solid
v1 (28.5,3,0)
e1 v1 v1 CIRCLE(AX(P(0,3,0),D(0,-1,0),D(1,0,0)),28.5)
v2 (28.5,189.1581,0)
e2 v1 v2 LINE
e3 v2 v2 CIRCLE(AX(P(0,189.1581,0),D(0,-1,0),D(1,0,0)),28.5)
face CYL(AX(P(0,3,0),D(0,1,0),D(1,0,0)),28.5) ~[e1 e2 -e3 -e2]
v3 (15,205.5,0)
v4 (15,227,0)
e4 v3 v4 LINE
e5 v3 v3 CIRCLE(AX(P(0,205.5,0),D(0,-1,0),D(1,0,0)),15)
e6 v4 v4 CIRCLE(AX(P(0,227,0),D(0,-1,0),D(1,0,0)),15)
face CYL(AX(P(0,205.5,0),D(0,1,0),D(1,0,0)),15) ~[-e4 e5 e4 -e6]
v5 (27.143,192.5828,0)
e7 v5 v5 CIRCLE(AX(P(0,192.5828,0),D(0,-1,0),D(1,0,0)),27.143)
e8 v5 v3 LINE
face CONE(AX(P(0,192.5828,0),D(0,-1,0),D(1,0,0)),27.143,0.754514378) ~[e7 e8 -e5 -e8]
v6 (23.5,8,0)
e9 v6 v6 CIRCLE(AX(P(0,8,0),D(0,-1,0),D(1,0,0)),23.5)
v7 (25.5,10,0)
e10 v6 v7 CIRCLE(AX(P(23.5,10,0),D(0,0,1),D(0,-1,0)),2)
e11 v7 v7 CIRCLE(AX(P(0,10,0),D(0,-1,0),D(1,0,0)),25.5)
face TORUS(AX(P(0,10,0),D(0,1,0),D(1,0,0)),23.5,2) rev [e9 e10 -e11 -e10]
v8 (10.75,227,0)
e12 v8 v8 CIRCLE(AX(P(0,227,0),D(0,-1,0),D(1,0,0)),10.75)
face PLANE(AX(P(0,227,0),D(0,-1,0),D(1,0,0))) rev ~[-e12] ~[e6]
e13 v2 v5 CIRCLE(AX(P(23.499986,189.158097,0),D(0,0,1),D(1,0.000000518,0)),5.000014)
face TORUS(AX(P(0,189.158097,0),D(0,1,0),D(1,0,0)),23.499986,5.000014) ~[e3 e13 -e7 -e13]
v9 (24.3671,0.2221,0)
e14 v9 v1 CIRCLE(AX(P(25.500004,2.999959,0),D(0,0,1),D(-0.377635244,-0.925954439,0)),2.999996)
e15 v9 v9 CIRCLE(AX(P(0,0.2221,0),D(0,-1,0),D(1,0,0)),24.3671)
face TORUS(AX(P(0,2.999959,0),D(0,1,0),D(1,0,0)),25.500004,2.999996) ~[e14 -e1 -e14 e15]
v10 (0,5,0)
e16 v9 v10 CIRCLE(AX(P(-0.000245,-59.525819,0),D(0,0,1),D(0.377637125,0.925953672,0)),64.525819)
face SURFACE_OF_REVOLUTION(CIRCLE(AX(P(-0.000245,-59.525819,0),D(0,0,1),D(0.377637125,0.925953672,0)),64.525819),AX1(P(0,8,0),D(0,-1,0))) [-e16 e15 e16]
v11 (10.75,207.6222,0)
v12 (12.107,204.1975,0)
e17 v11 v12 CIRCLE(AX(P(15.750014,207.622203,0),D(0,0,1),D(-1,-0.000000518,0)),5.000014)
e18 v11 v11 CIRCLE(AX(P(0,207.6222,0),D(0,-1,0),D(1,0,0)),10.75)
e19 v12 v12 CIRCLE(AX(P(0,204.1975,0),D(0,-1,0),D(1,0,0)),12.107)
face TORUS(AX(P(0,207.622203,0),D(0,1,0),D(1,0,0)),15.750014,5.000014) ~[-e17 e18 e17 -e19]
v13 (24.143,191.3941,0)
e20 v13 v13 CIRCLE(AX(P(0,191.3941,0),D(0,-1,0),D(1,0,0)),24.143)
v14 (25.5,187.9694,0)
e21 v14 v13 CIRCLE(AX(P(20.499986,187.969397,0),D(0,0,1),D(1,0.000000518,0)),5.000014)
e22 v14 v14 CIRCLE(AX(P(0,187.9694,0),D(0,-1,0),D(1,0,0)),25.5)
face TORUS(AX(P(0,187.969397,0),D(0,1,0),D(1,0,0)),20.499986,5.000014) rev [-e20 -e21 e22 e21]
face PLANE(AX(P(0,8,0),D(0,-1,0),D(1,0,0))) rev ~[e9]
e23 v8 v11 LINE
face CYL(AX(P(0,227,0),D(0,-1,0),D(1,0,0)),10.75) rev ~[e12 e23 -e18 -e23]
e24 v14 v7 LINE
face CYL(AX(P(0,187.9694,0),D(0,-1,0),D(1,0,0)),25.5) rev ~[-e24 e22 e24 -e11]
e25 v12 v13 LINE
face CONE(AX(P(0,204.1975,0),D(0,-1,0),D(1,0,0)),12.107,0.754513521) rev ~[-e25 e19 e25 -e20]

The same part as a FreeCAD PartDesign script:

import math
import FreeCAD as App
import Part
import Sketcher
Q = App.Units.Quantity

doc = App.newDocument("Part")
body = doc.addObject("PartDesign::Body", "Body")

# Sketch on XY plane
sketch1 = doc.addObject("Sketcher::SketchObject", "Sketch")
body.addObject(sketch1)
sketch1.AttachmentSupport = (doc.XY_Plane, [""])
sketch1.MapMode = "FlatFace"
sketch1.addGeometry(Part.LineSegment(App.Vector(23.5, 8, 0), App.Vector(0, 8, 0)), False)
sketch1.addGeometry(Part.LineSegment(App.Vector(0, 8, 0), App.Vector(0, 5, 0)), False)
sketch1.addGeometry(Part.ArcOfCircle(Part.Circle(App.Vector(0, -59.5, 0), App.Vector(0, 0, 1), 64.5), math.radians(68), math.radians(90)), False)
sketch1.addGeometry(Part.ArcOfCircle(Part.Circle(App.Vector(25.5, 3, 0), App.Vector(0, 0, 1), 3), math.radians(-112), math.radians(0)), False)
sketch1.addGeometry(Part.LineSegment(App.Vector(28.5, 3, 0), App.Vector(28.5, 189.2, 0)), False)
sketch1.addGeometry(Part.ArcOfCircle(Part.Circle(App.Vector(23.5, 189.2, 0), App.Vector(0, 0, 1), 5), math.radians(0), math.radians(43)), False)
sketch1.addGeometry(Part.LineSegment(App.Vector(27.1, 192.6, 0), App.Vector(15, 205.5, 0)), False)
sketch1.addGeometry(Part.LineSegment(App.Vector(15, 205.5, 0), App.Vector(15, 227, 0)), False)
sketch1.addGeometry(Part.LineSegment(App.Vector(15, 227, 0), App.Vector(10.8, 227, 0)), False)
sketch1.addGeometry(Part.LineSegment(App.Vector(10.8, 227, 0), App.Vector(10.8, 207.6, 0)), False)
sketch1.addGeometry(Part.ArcOfCircle(Part.Circle(App.Vector(15.8, 207.6, 0), App.Vector(0, 0, 1), 5), math.radians(180), math.radians(223)), False)
sketch1.addGeometry(Part.LineSegment(App.Vector(12.1, 204.2, 0), App.Vector(24.1, 191.4, 0)), False)
sketch1.addGeometry(Part.ArcOfCircle(Part.Circle(App.Vector(20.5, 188, 0), App.Vector(0, 0, 1), 5), math.radians(0), math.radians(43)), False)
sketch1.addGeometry(Part.LineSegment(App.Vector(25.5, 188, 0), App.Vector(25.5, 10, 0)), False)
sketch1.addGeometry(Part.ArcOfCircle(Part.Circle(App.Vector(23.5, 10, 0), App.Vector(0, 0, 1), 2), math.radians(-90), math.radians(0)), False)
sketch1.addConstraint(Sketcher.Constraint("Coincident", 0, 2, 1, 1))
sketch1.addConstraint(Sketcher.Constraint("Coincident", 1, 2, 2, 2))
sketch1.addConstraint(Sketcher.Constraint("Tangent", 2, 1, 3, 1))
sketch1.addConstraint(Sketcher.Constraint("Tangent", 3, 2, 4, 1))
sketch1.addConstraint(Sketcher.Constraint("Tangent", 4, 2, 5, 1))
sketch1.addConstraint(Sketcher.Constraint("Tangent", 5, 2, 6, 1))
sketch1.addConstraint(Sketcher.Constraint("Coincident", 6, 2, 7, 1))
sketch1.addConstraint(Sketcher.Constraint("Coincident", 7, 2, 8, 1))
sketch1.addConstraint(Sketcher.Constraint("Coincident", 8, 2, 9, 1))
sketch1.addConstraint(Sketcher.Constraint("Tangent", 9, 2, 10, 1))
sketch1.addConstraint(Sketcher.Constraint("Tangent", 10, 2, 11, 1))
sketch1.addConstraint(Sketcher.Constraint("Tangent", 11, 2, 12, 2))
sketch1.addConstraint(Sketcher.Constraint("Tangent", 12, 1, 13, 1))
sketch1.addConstraint(Sketcher.Constraint("Tangent", 13, 2, 14, 2))
sketch1.addConstraint(Sketcher.Constraint("Tangent", 14, 1, 0, 1))
sketch1.addConstraint(Sketcher.Constraint("Horizontal", 0))
sketch1.addConstraint(Sketcher.Constraint("Vertical", 1))
sketch1.addConstraint(Sketcher.Constraint("Vertical", 4))
sketch1.addConstraint(Sketcher.Constraint("Vertical", 7))
sketch1.addConstraint(Sketcher.Constraint("Horizontal", 8))
sketch1.addConstraint(Sketcher.Constraint("Vertical", 9))
sketch1.addConstraint(Sketcher.Constraint("Vertical", 13))
sketch1.addConstraint(Sketcher.Constraint("Equal", 5, 10))
sketch1.addConstraint(Sketcher.Constraint("Equal", 10, 12))
sketch1.addConstraint(Sketcher.Constraint("PointOnObject", 2, 3, -2))
sketch1.addConstraint(Sketcher.Constraint("PointOnObject", 0, 2, -2))
sketch1.addConstraint(Sketcher.Constraint("Parallel", 6, 11))
sketch1.addConstraint(Sketcher.Constraint("Vertical", 5, 3, 14, 3))
sketch1.addConstraint(Sketcher.Constraint("Vertical", 3, 3, 12, 1))
sketch1.addConstraint(Sketcher.Constraint("Radius", 3, 3.0))
sketch1.addConstraint(Sketcher.Constraint("Radius", 5, 5.0))
sketch1.addConstraint(Sketcher.Constraint("DistanceY", 1, 2, 1, 1, 3.0))
sketch1.addConstraint(Sketcher.Constraint("DistanceY", 7, 1, 7, 2, 21.5))
sketch1.addConstraint(Sketcher.Constraint("DistanceY", -1, 1, 3, 3, 3.0))
sketch1.addConstraint(Sketcher.Constraint("DistanceY", -1, 1, 1, 2, 5.0))
sketch1.addConstraint(Sketcher.Constraint("DistanceY", -1, 1, 7, 2, 227.0))
sketch1.addConstraint(Sketcher.Constraint("DistanceX", 0, 2, 0, 1, 23.5))
sketch1.addConstraint(Sketcher.Constraint("DistanceX", -1, 1, 6, 2, 15.0))
sketch1.addConstraint(Sketcher.Constraint("DistanceX", 8, 2, 8, 1, 4.25))
sketch1.addConstraint(Sketcher.Constraint("Angle", 6, Q("133.2305 deg")))
sketch1.addConstraint(Sketcher.Constraint("DistanceY", 9, 2, 9, 1, 19.3778))
revolution = doc.addObject("PartDesign::Revolution", "Revolution")
body.addObject(revolution)
revolution.Profile = sketch1
revolution.ReferenceAxis = (sketch1, ["V_Axis"])
revolution.Angle = 360

doc.recompute()
